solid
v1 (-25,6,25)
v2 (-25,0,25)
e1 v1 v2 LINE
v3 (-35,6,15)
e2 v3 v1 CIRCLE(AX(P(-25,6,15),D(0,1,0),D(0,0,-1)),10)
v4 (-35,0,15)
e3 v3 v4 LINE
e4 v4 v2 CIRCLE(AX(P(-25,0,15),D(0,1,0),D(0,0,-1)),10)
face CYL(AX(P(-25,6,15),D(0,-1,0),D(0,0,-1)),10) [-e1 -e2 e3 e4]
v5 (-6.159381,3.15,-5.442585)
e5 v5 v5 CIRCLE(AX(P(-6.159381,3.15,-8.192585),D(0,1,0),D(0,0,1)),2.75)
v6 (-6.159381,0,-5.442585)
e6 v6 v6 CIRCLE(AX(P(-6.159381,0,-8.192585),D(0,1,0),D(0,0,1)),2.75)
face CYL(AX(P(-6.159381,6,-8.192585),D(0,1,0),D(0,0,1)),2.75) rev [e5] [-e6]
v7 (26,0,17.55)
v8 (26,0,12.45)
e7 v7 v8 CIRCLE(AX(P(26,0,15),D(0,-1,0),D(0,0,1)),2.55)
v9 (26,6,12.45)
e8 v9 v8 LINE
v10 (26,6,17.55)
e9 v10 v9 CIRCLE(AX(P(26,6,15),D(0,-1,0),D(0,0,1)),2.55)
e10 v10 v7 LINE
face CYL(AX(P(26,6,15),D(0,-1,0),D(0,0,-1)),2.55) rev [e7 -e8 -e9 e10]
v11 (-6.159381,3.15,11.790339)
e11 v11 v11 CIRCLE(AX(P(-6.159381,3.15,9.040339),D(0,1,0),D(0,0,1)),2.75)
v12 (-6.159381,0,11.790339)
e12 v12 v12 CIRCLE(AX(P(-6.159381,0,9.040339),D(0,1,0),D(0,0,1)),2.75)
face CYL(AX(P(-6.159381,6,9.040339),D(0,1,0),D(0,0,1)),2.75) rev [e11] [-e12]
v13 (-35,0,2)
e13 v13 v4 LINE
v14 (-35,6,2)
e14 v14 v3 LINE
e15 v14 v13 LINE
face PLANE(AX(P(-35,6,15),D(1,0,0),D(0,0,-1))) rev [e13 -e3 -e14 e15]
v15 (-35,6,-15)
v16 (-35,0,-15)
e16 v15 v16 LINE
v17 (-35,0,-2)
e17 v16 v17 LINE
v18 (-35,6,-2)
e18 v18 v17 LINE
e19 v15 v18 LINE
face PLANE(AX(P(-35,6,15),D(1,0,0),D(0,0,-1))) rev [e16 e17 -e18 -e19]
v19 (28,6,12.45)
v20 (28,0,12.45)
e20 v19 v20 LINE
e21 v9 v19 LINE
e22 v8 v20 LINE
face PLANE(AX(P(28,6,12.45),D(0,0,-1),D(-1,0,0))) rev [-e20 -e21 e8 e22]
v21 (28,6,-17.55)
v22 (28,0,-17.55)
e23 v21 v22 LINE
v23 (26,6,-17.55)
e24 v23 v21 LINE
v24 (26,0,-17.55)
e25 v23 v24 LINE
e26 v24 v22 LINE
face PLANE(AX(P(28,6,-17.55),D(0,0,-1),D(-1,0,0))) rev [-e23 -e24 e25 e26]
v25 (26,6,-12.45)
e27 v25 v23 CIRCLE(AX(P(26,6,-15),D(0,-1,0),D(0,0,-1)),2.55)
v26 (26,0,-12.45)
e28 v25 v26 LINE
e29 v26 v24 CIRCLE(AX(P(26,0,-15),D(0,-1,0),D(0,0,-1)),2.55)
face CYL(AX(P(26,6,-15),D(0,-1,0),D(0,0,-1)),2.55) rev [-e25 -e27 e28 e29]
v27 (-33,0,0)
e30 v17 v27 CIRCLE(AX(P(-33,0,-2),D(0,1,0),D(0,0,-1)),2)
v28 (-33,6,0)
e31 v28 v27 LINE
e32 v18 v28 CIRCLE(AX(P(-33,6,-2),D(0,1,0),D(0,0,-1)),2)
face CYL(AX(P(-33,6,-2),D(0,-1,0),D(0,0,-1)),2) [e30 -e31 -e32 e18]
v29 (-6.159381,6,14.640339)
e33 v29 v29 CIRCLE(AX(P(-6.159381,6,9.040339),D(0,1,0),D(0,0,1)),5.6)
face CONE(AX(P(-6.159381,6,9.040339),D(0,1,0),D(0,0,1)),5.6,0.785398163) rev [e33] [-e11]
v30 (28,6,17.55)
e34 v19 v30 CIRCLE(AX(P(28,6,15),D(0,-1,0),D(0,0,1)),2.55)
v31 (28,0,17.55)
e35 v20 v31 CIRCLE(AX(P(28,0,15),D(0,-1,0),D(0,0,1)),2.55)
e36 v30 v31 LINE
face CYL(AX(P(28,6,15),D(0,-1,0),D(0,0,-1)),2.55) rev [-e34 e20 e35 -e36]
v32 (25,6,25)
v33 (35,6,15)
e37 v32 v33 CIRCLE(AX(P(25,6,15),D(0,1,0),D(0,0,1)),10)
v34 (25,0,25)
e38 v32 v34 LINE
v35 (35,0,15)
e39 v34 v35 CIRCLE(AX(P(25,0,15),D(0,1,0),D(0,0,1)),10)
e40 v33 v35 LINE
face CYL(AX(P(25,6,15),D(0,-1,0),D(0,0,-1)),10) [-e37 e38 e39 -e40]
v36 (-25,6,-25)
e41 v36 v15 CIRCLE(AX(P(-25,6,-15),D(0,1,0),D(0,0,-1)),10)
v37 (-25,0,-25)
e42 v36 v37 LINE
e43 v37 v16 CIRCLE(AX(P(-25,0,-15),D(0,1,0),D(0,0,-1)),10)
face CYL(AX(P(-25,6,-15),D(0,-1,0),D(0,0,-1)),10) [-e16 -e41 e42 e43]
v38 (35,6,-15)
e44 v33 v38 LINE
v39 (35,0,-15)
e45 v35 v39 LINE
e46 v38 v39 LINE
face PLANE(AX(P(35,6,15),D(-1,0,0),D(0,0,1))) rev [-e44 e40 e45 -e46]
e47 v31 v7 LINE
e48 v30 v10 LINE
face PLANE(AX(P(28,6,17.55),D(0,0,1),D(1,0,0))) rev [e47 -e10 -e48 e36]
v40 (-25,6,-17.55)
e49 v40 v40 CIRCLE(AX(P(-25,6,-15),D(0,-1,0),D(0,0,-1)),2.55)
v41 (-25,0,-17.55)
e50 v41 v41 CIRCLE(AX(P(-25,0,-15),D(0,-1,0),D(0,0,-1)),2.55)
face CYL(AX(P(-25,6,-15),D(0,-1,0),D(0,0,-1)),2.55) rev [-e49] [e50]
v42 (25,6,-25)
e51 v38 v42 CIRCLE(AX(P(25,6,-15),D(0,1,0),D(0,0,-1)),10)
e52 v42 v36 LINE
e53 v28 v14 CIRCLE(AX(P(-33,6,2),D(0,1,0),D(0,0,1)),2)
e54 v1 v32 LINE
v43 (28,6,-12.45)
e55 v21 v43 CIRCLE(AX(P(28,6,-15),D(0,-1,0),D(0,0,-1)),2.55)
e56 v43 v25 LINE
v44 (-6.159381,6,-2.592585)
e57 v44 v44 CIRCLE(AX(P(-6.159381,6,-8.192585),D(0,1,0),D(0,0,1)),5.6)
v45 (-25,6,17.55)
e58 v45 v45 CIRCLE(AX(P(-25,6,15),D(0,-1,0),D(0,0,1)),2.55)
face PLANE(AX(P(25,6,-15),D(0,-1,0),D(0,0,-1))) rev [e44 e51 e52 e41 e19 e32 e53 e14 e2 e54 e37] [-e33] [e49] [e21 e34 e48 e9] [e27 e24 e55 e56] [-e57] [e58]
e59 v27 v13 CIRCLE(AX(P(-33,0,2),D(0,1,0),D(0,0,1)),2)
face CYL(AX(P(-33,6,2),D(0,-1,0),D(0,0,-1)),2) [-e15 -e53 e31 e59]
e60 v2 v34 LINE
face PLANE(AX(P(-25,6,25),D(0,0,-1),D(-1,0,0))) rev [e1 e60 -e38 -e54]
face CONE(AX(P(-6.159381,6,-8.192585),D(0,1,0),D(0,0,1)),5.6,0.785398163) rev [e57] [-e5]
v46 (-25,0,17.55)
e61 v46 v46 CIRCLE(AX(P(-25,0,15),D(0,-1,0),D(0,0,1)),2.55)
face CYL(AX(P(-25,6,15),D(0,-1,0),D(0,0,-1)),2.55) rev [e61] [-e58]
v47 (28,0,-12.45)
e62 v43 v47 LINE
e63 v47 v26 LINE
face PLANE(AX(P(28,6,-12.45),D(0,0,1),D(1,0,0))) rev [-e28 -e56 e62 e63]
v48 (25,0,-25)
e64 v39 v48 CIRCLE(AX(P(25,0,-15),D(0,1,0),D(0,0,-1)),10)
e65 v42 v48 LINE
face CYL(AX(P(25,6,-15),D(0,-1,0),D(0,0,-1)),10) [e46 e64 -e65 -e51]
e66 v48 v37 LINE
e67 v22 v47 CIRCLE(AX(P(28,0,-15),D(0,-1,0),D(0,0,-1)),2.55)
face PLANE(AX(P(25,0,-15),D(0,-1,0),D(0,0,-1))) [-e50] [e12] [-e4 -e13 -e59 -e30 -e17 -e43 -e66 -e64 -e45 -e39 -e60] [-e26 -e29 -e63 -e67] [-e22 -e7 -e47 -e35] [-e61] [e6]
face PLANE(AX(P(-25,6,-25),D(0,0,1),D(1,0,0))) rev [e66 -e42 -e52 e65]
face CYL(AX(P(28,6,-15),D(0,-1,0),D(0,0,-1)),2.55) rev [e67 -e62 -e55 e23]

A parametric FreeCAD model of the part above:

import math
import FreeCAD as App
import Part
import Sketcher

V = App.Vector

doc = App.newDocument("Part")
body = doc.addObject("PartDesign::Body", "Body")

# Sketch on XZ plane
sketch1 = doc.addObject("Sketcher::SketchObject", "Sketch")
body.addObject(sketch1)
sketch1.AttachmentSupport = (doc.XZ_Plane, [""])
sketch1.MapMode = "FlatFace"
sketch1.addGeometry([
    Part.LineSegment(V(-25, 25, 0), V(25, 25, 0)),  # 0
    Part.ArcOfCircle(Part.Circle(V(25, 15, 0), V(0, 0, 1), 10), math.radians(0), math.radians(90)),  # 1
    Part.LineSegment(V(35, 15, 0), V(35, -15, 0)),  # 2
    Part.ArcOfCircle(Part.Circle(V(25, -15, 0), V(0, 0, 1), 10), math.radians(-90), math.radians(0)),  # 3
    Part.LineSegment(V(25, -25, 0), V(-25, -25, 0)),  # 4
    Part.ArcOfCircle(Part.Circle(V(-25, -15, 0), V(0, 0, 1), 10), math.radians(180), math.radians(270)),  # 5
    Part.LineSegment(V(-35, -15, 0), V(-35, 15, 0)),  # 6
    Part.ArcOfCircle(Part.Circle(V(-25, 15, 0), V(0, 0, 1), 10), math.radians(90), math.radians(180)),  # 7
], False)
sketch1.addConstraint([
    Sketcher.Constraint("Tangent", 0, 2, 1, 2),
    Sketcher.Constraint("Tangent", 1, 1, 2, 1),
    Sketcher.Constraint("Tangent", 2, 2, 3, 2),
    Sketcher.Constraint("Tangent", 3, 1, 4, 1),
    Sketcher.Constraint("Tangent", 4, 2, 5, 2),
    Sketcher.Constraint("Tangent", 5, 1, 6, 1),
    Sketcher.Constraint("Tangent", 6, 2, 7, 2),
    Sketcher.Constraint("Tangent", 7, 1, 0, 1),
    Sketcher.Constraint("Horizontal", 0),
    Sketcher.Constraint("Vertical", 2),
    Sketcher.Constraint("Horizontal", 4),
    Sketcher.Constraint("Vertical", 6),
    Sketcher.Constraint("Equal", 1, 3),
    Sketcher.Constraint("Equal", 3, 5),
    Sketcher.Constraint("Equal", 5, 7),
    Sketcher.Constraint("Symmetric", 1, 3, 5, 3, -1, 1),
    Sketcher.Constraint("Radius", 1, 10.0),
    Sketcher.Constraint("DistanceX", 0, 1, 0, 2, 50.0),
    Sketcher.Constraint("DistanceY", 2, 2, 2, 1, 30.0),
])
pad1 = doc.addObject("PartDesign::Pad", "Pad")
body.addObject(pad1)
pad1.Profile = sketch1
pad1.Length = 6
pad1.Reversed = True

# Sketch on XZ plane
sketch2 = doc.addObject("Sketcher::SketchObject", "Sketch001")
body.addObject(sketch2)
sketch2.AttachmentSupport = (doc.XZ_Plane, [""])
sketch2.MapMode = "FlatFace"
sketch2.addGeometry([
    Part.Circle(V(-25, -15, 0), V(0, 0, 1), 2.5),  # 0
    Part.Circle(V(-25, 15, 0), V(0, 0, 1), 2.5),  # 1
    Part.LineSegment(V(26, -17.6, 0), V(28, -17.6, 0)),  # 2
    Part.ArcOfCircle(Part.Circle(V(28, -15, 0), V(0, 0, 1), 2.5), math.radians(-90), math.radians(90)),  # 3
    Part.LineSegment(V(28, -12.4, 0), V(26, -12.4, 0)),  # 4
    Part.ArcOfCircle(Part.Circle(V(26, -15, 0), V(0, 0, 1), 2.5), math.radians(90), math.radians(270)),  # 5
    Part.LineSegment(V(28, 17.6, 0), V(26, 17.6, 0)),  # 6
    Part.ArcOfCircle(Part.Circle(V(26, 15, 0), V(0, 0, 1), 2.5), math.radians(90), math.radians(270)),  # 7
    Part.LineSegment(V(26, 12.4, 0), V(28, 12.4, 0)),  # 8
    Part.ArcOfCircle(Part.Circle(V(28, 15, 0), V(0, 0, 1), 2.5), math.radians(-90), math.radians(90)),  # 9
], False)
sketch2.addConstraint([
    Sketcher.Constraint("Tangent", 2, 2, 3, 1),
    Sketcher.Constraint("Tangent", 3, 2, 4, 1),
    Sketcher.Constraint("Tangent", 4, 2, 5, 1),
    Sketcher.Constraint("Tangent", 5, 2, 2, 1),
    Sketcher.Constraint("Tangent", 6, 2, 7, 1),
    Sketcher.Constraint("Tangent", 7, 2, 8, 1),
    Sketcher.Constraint("Tangent", 8, 2, 9, 1),
    Sketcher.Constraint("Tangent", 9, 2, 6, 1),
    Sketcher.Constraint("Horizontal", 2),
    Sketcher.Constraint("Horizontal", 4),
    Sketcher.Constraint("Horizontal", 6),
    Sketcher.Constraint("Horizontal", 8),
    Sketcher.Constraint("Equal", 0, 1),
    Sketcher.Constraint("Equal", 1, 3),
    Sketcher.Constraint("Equal", 5, 7),
    Sketcher.Constraint("Symmetric", 0, 3, 1, 3, -1),
    Sketcher.Constraint("Symmetric", 5, 3, 7, 3, -1),
    Sketcher.Constraint("Horizontal", 0, 3, 3, 3),
    Sketcher.Constraint("Vertical", 3, 3, 9, 3),
    Sketcher.Constraint("Diameter", 0, 5.1),
    Sketcher.Constraint("DistanceX", 2, 1, 2, 2, 2.0),
    Sketcher.Constraint("DistanceX", 0, 3, -1, 1, 25.0),
    Sketcher.Constraint("DistanceY", 0, 3, -1, 1, 15.0),
    Sketcher.Constraint("DistanceX", -1, 1, 3, 3, 28.0),
])
pocket1 = doc.addObject("PartDesign::Pocket", "Pocket")
body.addObject(pocket1)
pocket1.Profile = sketch2
pocket1.Type = "ThroughAll"

# Sketch on XZ plane
sketch3 = doc.addObject("Sketcher::SketchObject", "Sketch002")
body.addObject(sketch3)
sketch3.AttachmentSupport = (doc.XZ_Plane, [""])
sketch3.MapMode = "FlatFace"
sketch3.addGeometry([
    Part.LineSegment(V(-35, 2, 0), V(-35, -2, 0)),
    Part.ArcOfCircle(Part.Circle(V(-33, -2, 0), V(0, 0, 1), 2), math.radians(90), math.radians(180)),
    Part.ArcOfCircle(Part.Circle(V(-33, 2, 0), V(0, 0, 1), 2), math.radians(-180), math.radians(-90)),
], False)
sketch3.addConstraint([
    Sketcher.Constraint("Tangent", 0, 2, 1, 2),
    Sketcher.Constraint("Tangent", 1, 1, 2, 2),
    Sketcher.Constraint("Tangent", 2, 1, 0, 1),
    Sketcher.Constraint("Vertical", 0),
    Sketcher.Constraint("Equal", 1, 2),
    Sketcher.Constraint("PointOnObject", 1, 1, -1),
    Sketcher.Constraint("Radius", 1, 2.0),
    Sketcher.Constraint("DistanceX", 1, 3, -1, 1, 33.0),
])
pocket2 = doc.addObject("PartDesign::Pocket", "Pocket001")
body.addObject(pocket2)
pocket2.Profile = sketch3
pocket2.Type = "ThroughAll"

# Sketch on XZ plane
sketch4 = doc.addObject("Sketcher::SketchObject", "Sketch003")
body.addObject(sketch4)
sketch4.AttachmentSupport = (doc.XZ_Plane, [""])
sketch4.MapMode = "FlatFace"
sketch4.AttachmentOffset = App.Placement(V(0, 0, -6), App.Rotation())
sketch4.addGeometry([
    Part.Circle(V(-6.2, 9, 0), V(0, 0, 1), 2.8),
    Part.Circle(V(-6.2, -8.2, 0), V(0, 0, 1), 2.8),
], False)
sketch4.addConstraint([
    Sketcher.Constraint("Equal", 0, 1),
    Sketcher.Constraint("Vertical", 0, 3, 1, 3),
    Sketcher.Constraint("Diameter", 0, 5.5),
    Sketcher.Constraint("DistanceX", 0, 3, -1, 1, 6.159381),
    Sketcher.Constraint("DistanceY", -1, 1, 0, 3, 9.040339),
    Sketcher.Constraint("DistanceY", 1, 3, -1, 1, 8.192585),
])
doc.recompute()
hole = doc.addObject("PartDesign::Hole", "Hole")
body.addObject(hole)
hole.Profile = sketch4
hole.ThreadType = "None"
hole.Diameter = 5.5
hole.DepthType = "ThroughAll"
hole.HoleCutType = "Countersink"
hole.HoleCutDiameter = 11.2
hole.HoleCutCountersinkAngle = 90
hole.Reversed = True

doc.recompute()
